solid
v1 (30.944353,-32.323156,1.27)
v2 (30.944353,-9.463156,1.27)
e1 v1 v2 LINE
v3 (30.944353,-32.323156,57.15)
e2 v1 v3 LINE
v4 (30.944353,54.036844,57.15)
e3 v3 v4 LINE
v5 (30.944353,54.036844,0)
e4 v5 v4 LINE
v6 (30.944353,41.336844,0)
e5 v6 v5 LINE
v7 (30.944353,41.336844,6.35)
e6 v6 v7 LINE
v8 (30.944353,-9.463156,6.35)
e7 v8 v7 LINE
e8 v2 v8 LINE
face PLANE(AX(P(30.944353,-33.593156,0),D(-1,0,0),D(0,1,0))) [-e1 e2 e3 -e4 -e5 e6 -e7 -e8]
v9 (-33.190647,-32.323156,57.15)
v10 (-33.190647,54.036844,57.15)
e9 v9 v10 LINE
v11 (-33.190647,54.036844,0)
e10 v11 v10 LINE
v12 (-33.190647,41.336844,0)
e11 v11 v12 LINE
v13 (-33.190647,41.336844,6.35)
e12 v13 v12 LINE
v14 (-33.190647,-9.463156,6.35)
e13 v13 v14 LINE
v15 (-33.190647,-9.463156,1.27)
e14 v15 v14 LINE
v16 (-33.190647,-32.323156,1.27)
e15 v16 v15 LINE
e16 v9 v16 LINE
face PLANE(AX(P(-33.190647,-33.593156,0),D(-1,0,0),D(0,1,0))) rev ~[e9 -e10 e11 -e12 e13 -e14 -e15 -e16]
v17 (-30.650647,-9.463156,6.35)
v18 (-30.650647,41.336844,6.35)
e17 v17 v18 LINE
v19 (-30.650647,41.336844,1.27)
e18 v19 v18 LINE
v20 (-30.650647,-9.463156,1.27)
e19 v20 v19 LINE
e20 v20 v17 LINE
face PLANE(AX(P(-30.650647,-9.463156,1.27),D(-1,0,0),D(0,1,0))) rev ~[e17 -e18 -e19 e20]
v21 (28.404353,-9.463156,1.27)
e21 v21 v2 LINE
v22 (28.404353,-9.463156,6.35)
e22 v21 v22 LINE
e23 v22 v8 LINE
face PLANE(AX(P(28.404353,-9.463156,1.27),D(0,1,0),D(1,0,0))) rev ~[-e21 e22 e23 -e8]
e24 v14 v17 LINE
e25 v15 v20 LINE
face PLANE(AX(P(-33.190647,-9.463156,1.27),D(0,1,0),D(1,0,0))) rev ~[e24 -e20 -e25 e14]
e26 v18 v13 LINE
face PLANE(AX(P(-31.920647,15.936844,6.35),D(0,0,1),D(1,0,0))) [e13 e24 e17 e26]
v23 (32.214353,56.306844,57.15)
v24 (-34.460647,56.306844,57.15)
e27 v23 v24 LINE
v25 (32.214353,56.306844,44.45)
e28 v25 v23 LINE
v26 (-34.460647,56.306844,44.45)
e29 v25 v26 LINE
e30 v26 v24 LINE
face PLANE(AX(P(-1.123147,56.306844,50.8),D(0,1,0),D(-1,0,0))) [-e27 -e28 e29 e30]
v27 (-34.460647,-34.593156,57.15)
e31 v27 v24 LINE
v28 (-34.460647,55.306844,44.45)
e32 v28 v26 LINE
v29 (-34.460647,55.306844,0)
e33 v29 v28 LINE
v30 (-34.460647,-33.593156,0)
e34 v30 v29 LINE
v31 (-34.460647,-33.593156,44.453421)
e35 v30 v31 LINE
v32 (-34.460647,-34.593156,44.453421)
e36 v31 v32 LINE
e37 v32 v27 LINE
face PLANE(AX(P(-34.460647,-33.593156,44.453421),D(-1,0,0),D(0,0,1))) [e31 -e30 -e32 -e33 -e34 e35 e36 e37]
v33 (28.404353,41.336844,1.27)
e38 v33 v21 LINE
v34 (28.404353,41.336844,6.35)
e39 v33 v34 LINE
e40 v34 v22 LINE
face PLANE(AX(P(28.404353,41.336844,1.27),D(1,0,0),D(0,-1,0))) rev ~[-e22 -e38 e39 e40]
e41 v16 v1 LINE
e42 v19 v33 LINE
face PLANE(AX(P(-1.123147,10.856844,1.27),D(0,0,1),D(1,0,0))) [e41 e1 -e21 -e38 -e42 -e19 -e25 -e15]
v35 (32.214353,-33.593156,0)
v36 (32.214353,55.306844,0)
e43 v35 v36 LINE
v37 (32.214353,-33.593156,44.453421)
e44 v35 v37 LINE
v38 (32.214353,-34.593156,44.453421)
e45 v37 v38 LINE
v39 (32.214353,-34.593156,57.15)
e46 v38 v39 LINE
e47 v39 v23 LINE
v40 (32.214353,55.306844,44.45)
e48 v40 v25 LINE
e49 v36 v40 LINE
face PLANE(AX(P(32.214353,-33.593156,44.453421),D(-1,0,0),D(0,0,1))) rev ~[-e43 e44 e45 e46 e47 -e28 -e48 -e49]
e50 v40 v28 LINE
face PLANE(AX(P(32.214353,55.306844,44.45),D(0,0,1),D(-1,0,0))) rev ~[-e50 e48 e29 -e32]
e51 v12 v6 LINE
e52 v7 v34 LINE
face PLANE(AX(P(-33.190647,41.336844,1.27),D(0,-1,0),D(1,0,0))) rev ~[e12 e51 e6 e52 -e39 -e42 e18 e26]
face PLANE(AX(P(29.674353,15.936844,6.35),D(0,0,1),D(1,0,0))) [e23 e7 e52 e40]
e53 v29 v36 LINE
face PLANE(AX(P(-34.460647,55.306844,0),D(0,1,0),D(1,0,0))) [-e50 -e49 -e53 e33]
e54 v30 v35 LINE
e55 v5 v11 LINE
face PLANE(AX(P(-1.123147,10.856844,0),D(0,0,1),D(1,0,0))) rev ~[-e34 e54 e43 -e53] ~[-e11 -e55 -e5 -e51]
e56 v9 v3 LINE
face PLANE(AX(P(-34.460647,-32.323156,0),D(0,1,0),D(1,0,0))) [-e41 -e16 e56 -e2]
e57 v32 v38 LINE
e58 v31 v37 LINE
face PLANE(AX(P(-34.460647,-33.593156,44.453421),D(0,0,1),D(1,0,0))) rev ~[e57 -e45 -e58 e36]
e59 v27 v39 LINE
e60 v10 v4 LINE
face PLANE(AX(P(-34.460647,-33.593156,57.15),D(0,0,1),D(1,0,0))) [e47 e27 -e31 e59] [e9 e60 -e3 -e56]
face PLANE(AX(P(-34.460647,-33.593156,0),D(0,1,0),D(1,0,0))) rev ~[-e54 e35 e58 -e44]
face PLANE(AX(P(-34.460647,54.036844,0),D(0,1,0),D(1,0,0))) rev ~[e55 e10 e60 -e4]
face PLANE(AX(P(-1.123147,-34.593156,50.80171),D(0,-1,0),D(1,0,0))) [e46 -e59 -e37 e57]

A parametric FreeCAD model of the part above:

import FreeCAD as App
import Part
import Sketcher

V = App.Vector
Q = App.Units.Quantity


def faces_at(feature, points):
    """Names of the faces that lie closest to the given points."""
    faces = feature.Shape.Faces
    near = lambda p: min(range(len(faces)), key=lambda i: faces[i].distToShape(Part.Vertex(*p))[0])
    return sorted({f"Face{near(p) + 1}" for p in points})


def add_polygon(sketch, points):
    """Adds a closed chain of lines whose ends are joined by coincident constraints."""
    first, n = sketch.GeometryCount, len(points)
    for a, b in zip(points, points[1:] + points[:1]):
        sketch.addGeometry(Part.LineSegment(App.Vector(*a, 0), App.Vector(*b, 0)), False)
    for i in range(n):
        sketch.addConstraint(Sketcher.Constraint("Coincident", first + i, 2, first + (i + 1) % n, 1))

doc = App.newDocument("Part")
params = doc.addObject("Spreadsheet::Sheet", "Params")
for row, (alias, value) in enumerate([
    ("sketch1_height", "3.5 in"),
    ("sketch1_width", "2.625 in"),
    ("pad1_length", "2.25 in"),
    ("thickness_wall", "0.05 in"),
    ("sketch2_height", "2 in"),
    ("sketch2_width", "0.1 in"),
    ("pad2_length", "0.2 in"),
    ("sketch3_height", "0.5 in"),
    ("sketch3_width", "2.625 in"),
    ("pad3_length", "1 mm"),
    ("sketch4_width", "2.625 in"),
    ("pad4_length", "1 mm"),
    ("sketch5_height", "0.5 in"),
    ("sketch5_width", "2.525 in"),
    ("pocket1_length", "1 in"),
], start=1):
    params.set(f"A{row}", alias)
    params.set(f"B{row}", "=" + value)
    params.setAlias(f"B{row}", alias)

body = doc.addObject("PartDesign::Body", "Body")

# Sketch on XY plane
sketch1 = body.newObject("Sketcher::SketchObject", "Sketch")
sketch1.AttachmentSupport = (doc.getObject("XY_Plane"), [""])
sketch1.MapMode = "FlatFace"
add_polygon(sketch1, [(-34, 55), (-34, -34), (32, -34), (32, 55)])  # lines 0-3
sketch1.addConstraint(Sketcher.Constraint("Vertical", 0))
sketch1.addConstraint(Sketcher.Constraint("Horizontal", 1))
sketch1.addConstraint(Sketcher.Constraint("Vertical", 2))
sketch1.addConstraint(Sketcher.Constraint("Horizontal", 3))
sketch1.addConstraint(Sketcher.Constraint("DistanceY", 0, 2, 0, 1, Q("3.5 in")))
sketch1.addConstraint(Sketcher.Constraint("DistanceX", 1, 1, 1, 2, Q("2.625 in")))
sketch1.addConstraint(Sketcher.Constraint("DistanceX", 0, 2, -1, 1, Q("34.460647 mm")))
sketch1.addConstraint(Sketcher.Constraint("DistanceY", 0, 2, -1, 1, Q("33.593156 mm")))
sketch1.setExpression("Constraints[8]", "Params.sketch1_height")
sketch1.setExpression("Constraints[9]", "Params.sketch1_width")
pad1 = body.newObject("PartDesign::Pad", "Pad")
pad1.Profile = sketch1
pad1.setExpression("Length", "Params.pad1_length")
doc.recompute()

thickness = body.newObject("PartDesign::Thickness", "Thickness")
thickness.Base = (pad1, faces_at(pad1, [(-1.123, 10.857, 57.15)]))
thickness.setExpression("Value", "Params.thickness_wall")
thickness.Reversed = True
thickness.Join = "Arc"

# Sketch on XY plane
sketch2 = body.newObject("Sketcher::SketchObject", "Sketch001")
sketch2.AttachmentSupport = (doc.getObject("XY_Plane"), [""])
sketch2.MapMode = "FlatFace"
sketch2.AttachmentOffset = App.Placement(V(0, 0, 0.05 * 25.4), App.Rotation())
add_polygon(sketch2, [(30.9, 41.3), (28.4, 41.3), (28.4, -9.5), (30.9, -9.5)])  # lines 0-3
add_polygon(sketch2, [(-30.7, 41.3), (-33.2, 41.3), (-33.2, -9.5), (-30.7, -9.5)])  # lines 4-7
sketch2.addConstraint(Sketcher.Constraint("Horizontal", 0))
sketch2.addConstraint(Sketcher.Constraint("Vertical", 1))
sketch2.addConstraint(Sketcher.Constraint("Horizontal", 2))
sketch2.addConstraint(Sketcher.Constraint("Vertical", 3))
sketch2.addConstraint(Sketcher.Constraint("Horizontal", 4))
sketch2.addConstraint(Sketcher.Constraint("Vertical", 5))
sketch2.addConstraint(Sketcher.Constraint("Horizontal", 6))
sketch2.addConstraint(Sketcher.Constraint("Vertical", 7))
sketch2.addConstraint(Sketcher.Constraint("Horizontal", 3, 2, 4, 2))
sketch2.addConstraint(Sketcher.Constraint("Horizontal", 2, 2, 5, 2))
sketch2.addConstraint(Sketcher.Constraint("Equal", 2, 4))
sketch2.addConstraint(Sketcher.Constraint("DistanceY", 1, 2, 1, 1, Q("2 in")))
sketch2.addConstraint(Sketcher.Constraint("DistanceX", 0, 2, 0, 1, Q("0.1 in")))
sketch2.addConstraint(Sketcher.Constraint("DistanceX", 4, 2, 0, 2, Q("2.425 in")))
sketch2.addConstraint(Sketcher.Constraint("DistanceX", -1, 1, 0, 2, Q("28.404353 mm")))
sketch2.addConstraint(Sketcher.Constraint("DistanceY", -1, 1, 0, 2, Q("41.336844 mm")))
sketch2.setExpression("Constraints[19]", "Params.sketch2_height")
sketch2.setExpression("Constraints[20]", "Params.sketch2_width")
pad2 = body.newObject("PartDesign::Pad", "Pad001")
pad2.Profile = sketch2
pad2.setExpression("Length", "Params.pad2_length")

# Sketch on XZ plane
sketch3 = body.newObject("Sketcher::SketchObject", "Sketch002")
sketch3.AttachmentSupport = (doc.getObject("XZ_Plane"), [""])
sketch3.MapMode = "FlatFace"
sketch3.AttachmentOffset = App.Placement(V(0, 0, -55.306844), App.Rotation())
add_polygon(sketch3, [(32, 57), (32, 44), (-34, 44), (-34, 57)])  # lines 0-3
sketch3.addConstraint(Sketcher.Constraint("Vertical", 0))
sketch3.addConstraint(Sketcher.Constraint("Horizontal", 1))
sketch3.addConstraint(Sketcher.Constraint("Vertical", 2))
sketch3.addConstraint(Sketcher.Constraint("Horizontal", 3))
sketch3.addConstraint(Sketcher.Constraint("DistanceY", 0, 2, 0, 1, Q("0.5 in")))
sketch3.addConstraint(Sketcher.Constraint("DistanceX", 1, 2, 1, 1, Q("2.625 in")))
sketch3.addConstraint(Sketcher.Constraint("DistanceY", -1, 1, 0, 2, Q("1.75 in")))
sketch3.addConstraint(Sketcher.Constraint("DistanceX", -1, 1, 0, 2, Q("32.214353 mm")))
sketch3.setExpression("Constraints[8]", "Params.sketch3_height")
sketch3.setExpression("Constraints[9]", "Params.sketch3_width")
pad3 = body.newObject("PartDesign::Pad", "Pad002")
pad3.Profile = sketch3
pad3.setExpression("Length", "Params.pad3_length")
pad3.Reversed = True

# Sketch on XZ plane
sketch4 = body.newObject("Sketcher::SketchObject", "Sketch003")
sketch4.AttachmentSupport = (doc.getObject("XZ_Plane"), [""])
sketch4.MapMode = "FlatFace"
sketch4.AttachmentOffset = App.Placement(V(0, 0, 33.593156), App.Rotation())
add_polygon(sketch4, [(-34, 57), (-34, 44), (32, 44), (32, 57)])  # lines 0-3
sketch4.addConstraint(Sketcher.Constraint("Vertical", 0))
sketch4.addConstraint(Sketcher.Constraint("Horizontal", 1))
sketch4.addConstraint(Sketcher.Constraint("Vertical", 2))
sketch4.addConstraint(Sketcher.Constraint("Horizontal", 3))
sketch4.addConstraint(Sketcher.Constraint("DistanceX", 1, 1, 1, 2, Q("2.625 in")))
sketch4.addConstraint(Sketcher.Constraint("DistanceY", -1, 1, 2, 2, Q("2.25 in")))
sketch4.addConstraint(Sketcher.Constraint("DistanceY", 0, 2, 0, 1, Q("12.696579 mm")))
sketch4.addConstraint(Sketcher.Constraint("DistanceX", 0, 2, -1, 1, Q("34.460647 mm")))
sketch4.setExpression("Constraints[8]", "Params.sketch4_width")
pad4 = body.newObject("PartDesign::Pad", "Pad003")
pad4.Profile = sketch4
pad4.setExpression("Length", "Params.pad4_length")

# Sketch on XY plane
sketch5 = body.newObject("Sketcher::SketchObject", "Sketch004")
sketch5.AttachmentSupport = (doc.getObject("XY_Plane"), [""])
sketch5.MapMode = "FlatFace"
sketch5.AttachmentOffset = App.Placement(V(0, 0, 0.05 * 25.4), App.Rotation())
add_polygon(sketch5, [(-33, 54), (-33, 41), (31, 41), (31, 54)])  # lines 0-3
sketch5.addConstraint(Sketcher.Constraint("Vertical", 0))
sketch5.addConstraint(Sketcher.Constraint("Horizontal", 1))
sketch5.addConstraint(Sketcher.Constraint("Vertical", 2))
sketch5.addConstraint(Sketcher.Constraint("Horizontal", 3))
sketch5.addConstraint(Sketcher.Constraint("DistanceY", 0, 2, 0, 1, Q("0.5 in")))
sketch5.addConstraint(Sketcher.Constraint("DistanceX", 1, 1, 1, 2, Q("2.525 in")))
sketch5.addConstraint(Sketcher.Constraint("DistanceX", 0, 2, -1, 1, Q("33.190647 mm")))
sketch5.addConstraint(Sketcher.Constraint("DistanceY", -1, 1, 0, 2, Q("41.336844 mm")))
sketch5.setExpression("Constraints[8]", "Params.sketch5_height")
sketch5.setExpression("Constraints[9]", "Params.sketch5_width")
pocket1 = body.newObject("PartDesign::Pocket", "Pocket")
pocket1.Profile = sketch5
pocket1.setExpression("Length", "Params.pocket1_length")

doc.recompute()
